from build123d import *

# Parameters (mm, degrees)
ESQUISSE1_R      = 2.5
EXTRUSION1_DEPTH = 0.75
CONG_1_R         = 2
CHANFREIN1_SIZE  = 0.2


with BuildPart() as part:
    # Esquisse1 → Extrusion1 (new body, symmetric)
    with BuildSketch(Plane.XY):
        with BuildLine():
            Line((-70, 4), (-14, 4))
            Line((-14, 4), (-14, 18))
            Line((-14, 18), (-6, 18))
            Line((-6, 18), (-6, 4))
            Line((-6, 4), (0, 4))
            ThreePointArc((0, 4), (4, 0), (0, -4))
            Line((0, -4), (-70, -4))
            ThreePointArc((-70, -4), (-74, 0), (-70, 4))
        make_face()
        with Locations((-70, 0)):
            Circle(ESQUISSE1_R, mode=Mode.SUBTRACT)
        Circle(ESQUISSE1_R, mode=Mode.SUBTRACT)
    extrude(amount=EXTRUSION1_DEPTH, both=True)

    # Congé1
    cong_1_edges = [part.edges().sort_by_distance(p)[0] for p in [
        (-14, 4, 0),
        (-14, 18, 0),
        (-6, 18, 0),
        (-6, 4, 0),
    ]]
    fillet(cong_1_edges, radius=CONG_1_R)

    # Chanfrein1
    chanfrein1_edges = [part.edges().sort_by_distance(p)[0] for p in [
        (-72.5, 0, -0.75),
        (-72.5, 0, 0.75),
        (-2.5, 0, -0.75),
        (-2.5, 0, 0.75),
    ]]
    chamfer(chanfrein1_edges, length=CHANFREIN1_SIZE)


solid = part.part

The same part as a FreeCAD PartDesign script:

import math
import FreeCAD as App
import Part
import Sketcher
Q = App.Units.Quantity


def edges_at(feature, points):
    """Names of the edges that pass closest to the given points."""
    edges = feature.Shape.Edges
    near = lambda p: min(range(len(edges)), key=lambda i: edges[i].distToShape(Part.Vertex(*p))[0])
    return sorted({f"Edge{near(p) + 1}" for p in points})

doc = App.newDocument("Part")
body = doc.addObject("PartDesign::Body", "Body")

# Sketch on XY plane
sketch1 = doc.addObject("Sketcher::SketchObject", "Sketch")
body.addObject(sketch1)
sketch1.AttachmentSupport = (doc.XY_Plane, [""])
sketch1.MapMode = "FlatFace"
sketch1.addGeometry(Part.LineSegment(App.Vector(-14, 4, 0), App.Vector(-70, 4, 0)), False)
sketch1.addGeometry(Part.ArcOfCircle(Part.Circle(App.Vector(-70, 0, 0), App.Vector(0, 0, 1), 4), math.radians(90), math.radians(270)), False)
sketch1.addGeometry(Part.LineSegment(App.Vector(-70, -4, 0), App.Vector(0, -4, 0)), False)
sketch1.addGeometry(Part.ArcOfCircle(Part.Circle(App.Vector(0, 0, 0), App.Vector(0, 0, 1), 4), math.radians(-90), math.radians(90)), False)
sketch1.addGeometry(Part.LineSegment(App.Vector(0, 4, 0), App.Vector(-6, 4, 0)), False)
sketch1.addGeometry(Part.LineSegment(App.Vector(-6, 4, 0), App.Vector(-6, 18, 0)), False)
sketch1.addGeometry(Part.LineSegment(App.Vector(-6, 18, 0), App.Vector(-14, 18, 0)), False)
sketch1.addGeometry(Part.LineSegment(App.Vector(-14, 18, 0), App.Vector(-14, 4, 0)), False)
sketch1.addGeometry(Part.Circle(App.Vector(0, 0, 0), App.Vector(0, 0, 1), 2.5), False)
sketch1.addGeometry(Part.Circle(App.Vector(-70, 0, 0), App.Vector(0, 0, 1), 2.5), False)
sketch1.addConstraint(Sketcher.Constraint("Tangent", 0, 2, 1, 1))
sketch1.addConstraint(Sketcher.Constraint("Tangent", 1, 2, 2, 1))
sketch1.addConstraint(Sketcher.Constraint("Tangent", 2, 2, 3, 1))
sketch1.addConstraint(Sketcher.Constraint("Tangent", 3, 2, 4, 1))
sketch1.addConstraint(Sketcher.Constraint("Coincident", 4, 2, 5, 1))
sketch1.addConstraint(Sketcher.Constraint("Coincident", 5, 2, 6, 1))
sketch1.addConstraint(Sketcher.Constraint("Coincident", 6, 2, 7, 1))
sketch1.addConstraint(Sketcher.Constraint("Coincident", 7, 2, 0, 1))
sketch1.addConstraint(Sketcher.Constraint("Horizontal", 0))
sketch1.addConstraint(Sketcher.Constraint("Horizontal", 2))
sketch1.addConstraint(Sketcher.Constraint("Horizontal", 4))
sketch1.addConstraint(Sketcher.Constraint("Vertical", 5))
sketch1.addConstraint(Sketcher.Constraint("Horizontal", 6))
sketch1.addConstraint(Sketcher.Constraint("Vertical", 7))
sketch1.addConstraint(Sketcher.Constraint("Coincident", 3, 3, -1, 1))
sketch1.addConstraint(Sketcher.Constraint("Coincident", 8, 3, -1, 1))
sketch1.addConstraint(Sketcher.Constraint("Coincident", 9, 3, 1, 3))
sketch1.addConstraint(Sketcher.Constraint("Equal", 1, 3))
sketch1.addConstraint(Sketcher.Constraint("Equal", 8, 9))
sketch1.addConstraint(Sketcher.Constraint("Diameter", 8, Q("5 mm")))
sketch1.addConstraint(Sketcher.Constraint("Radius", 1, Q("4 mm")))
sketch1.addConstraint(Sketcher.Constraint("DistanceX", 0, 2, 0, 1, Q("56 mm")))
sketch1.addConstraint(Sketcher.Constraint("DistanceX", 2, 1, 2, 2, Q("70 mm")))
sketch1.addConstraint(Sketcher.Constraint("DistanceX", 4, 2, 4, 1, Q("6 mm")))
sketch1.addConstraint(Sketcher.Constraint("DistanceY", 5, 1, 5, 2, Q("14 mm")))
pad1 = doc.addObject("PartDesign::Pad", "Pad")
body.addObject(pad1)
pad1.Profile = sketch1
pad1.Length = 1.5
pad1.Midplane = True
doc.recompute()

fillet = doc.addObject("PartDesign::Fillet", "Fillet")
body.addObject(fillet)
fillet.Base = (pad1, edges_at(pad1, [
    (-14, 4, 0),
    (-14, 18, 0),
    (-6, 18, 0),
    (-6, 4, 0),
]))
fillet.Radius = 2
doc.recompute()

chamfer = doc.addObject("PartDesign::Chamfer", "Chamfer")
body.addObject(chamfer)
chamfer.Base = (fillet, edges_at(fillet, [
    (-72.5, 0, -0.75),
    (-72.5, 0, 0.75),
    (-2.5, 0, -0.75),
    (-2.5, 0, 0.75),
]))
chamfer.Size = 0.2

doc.recompute()
